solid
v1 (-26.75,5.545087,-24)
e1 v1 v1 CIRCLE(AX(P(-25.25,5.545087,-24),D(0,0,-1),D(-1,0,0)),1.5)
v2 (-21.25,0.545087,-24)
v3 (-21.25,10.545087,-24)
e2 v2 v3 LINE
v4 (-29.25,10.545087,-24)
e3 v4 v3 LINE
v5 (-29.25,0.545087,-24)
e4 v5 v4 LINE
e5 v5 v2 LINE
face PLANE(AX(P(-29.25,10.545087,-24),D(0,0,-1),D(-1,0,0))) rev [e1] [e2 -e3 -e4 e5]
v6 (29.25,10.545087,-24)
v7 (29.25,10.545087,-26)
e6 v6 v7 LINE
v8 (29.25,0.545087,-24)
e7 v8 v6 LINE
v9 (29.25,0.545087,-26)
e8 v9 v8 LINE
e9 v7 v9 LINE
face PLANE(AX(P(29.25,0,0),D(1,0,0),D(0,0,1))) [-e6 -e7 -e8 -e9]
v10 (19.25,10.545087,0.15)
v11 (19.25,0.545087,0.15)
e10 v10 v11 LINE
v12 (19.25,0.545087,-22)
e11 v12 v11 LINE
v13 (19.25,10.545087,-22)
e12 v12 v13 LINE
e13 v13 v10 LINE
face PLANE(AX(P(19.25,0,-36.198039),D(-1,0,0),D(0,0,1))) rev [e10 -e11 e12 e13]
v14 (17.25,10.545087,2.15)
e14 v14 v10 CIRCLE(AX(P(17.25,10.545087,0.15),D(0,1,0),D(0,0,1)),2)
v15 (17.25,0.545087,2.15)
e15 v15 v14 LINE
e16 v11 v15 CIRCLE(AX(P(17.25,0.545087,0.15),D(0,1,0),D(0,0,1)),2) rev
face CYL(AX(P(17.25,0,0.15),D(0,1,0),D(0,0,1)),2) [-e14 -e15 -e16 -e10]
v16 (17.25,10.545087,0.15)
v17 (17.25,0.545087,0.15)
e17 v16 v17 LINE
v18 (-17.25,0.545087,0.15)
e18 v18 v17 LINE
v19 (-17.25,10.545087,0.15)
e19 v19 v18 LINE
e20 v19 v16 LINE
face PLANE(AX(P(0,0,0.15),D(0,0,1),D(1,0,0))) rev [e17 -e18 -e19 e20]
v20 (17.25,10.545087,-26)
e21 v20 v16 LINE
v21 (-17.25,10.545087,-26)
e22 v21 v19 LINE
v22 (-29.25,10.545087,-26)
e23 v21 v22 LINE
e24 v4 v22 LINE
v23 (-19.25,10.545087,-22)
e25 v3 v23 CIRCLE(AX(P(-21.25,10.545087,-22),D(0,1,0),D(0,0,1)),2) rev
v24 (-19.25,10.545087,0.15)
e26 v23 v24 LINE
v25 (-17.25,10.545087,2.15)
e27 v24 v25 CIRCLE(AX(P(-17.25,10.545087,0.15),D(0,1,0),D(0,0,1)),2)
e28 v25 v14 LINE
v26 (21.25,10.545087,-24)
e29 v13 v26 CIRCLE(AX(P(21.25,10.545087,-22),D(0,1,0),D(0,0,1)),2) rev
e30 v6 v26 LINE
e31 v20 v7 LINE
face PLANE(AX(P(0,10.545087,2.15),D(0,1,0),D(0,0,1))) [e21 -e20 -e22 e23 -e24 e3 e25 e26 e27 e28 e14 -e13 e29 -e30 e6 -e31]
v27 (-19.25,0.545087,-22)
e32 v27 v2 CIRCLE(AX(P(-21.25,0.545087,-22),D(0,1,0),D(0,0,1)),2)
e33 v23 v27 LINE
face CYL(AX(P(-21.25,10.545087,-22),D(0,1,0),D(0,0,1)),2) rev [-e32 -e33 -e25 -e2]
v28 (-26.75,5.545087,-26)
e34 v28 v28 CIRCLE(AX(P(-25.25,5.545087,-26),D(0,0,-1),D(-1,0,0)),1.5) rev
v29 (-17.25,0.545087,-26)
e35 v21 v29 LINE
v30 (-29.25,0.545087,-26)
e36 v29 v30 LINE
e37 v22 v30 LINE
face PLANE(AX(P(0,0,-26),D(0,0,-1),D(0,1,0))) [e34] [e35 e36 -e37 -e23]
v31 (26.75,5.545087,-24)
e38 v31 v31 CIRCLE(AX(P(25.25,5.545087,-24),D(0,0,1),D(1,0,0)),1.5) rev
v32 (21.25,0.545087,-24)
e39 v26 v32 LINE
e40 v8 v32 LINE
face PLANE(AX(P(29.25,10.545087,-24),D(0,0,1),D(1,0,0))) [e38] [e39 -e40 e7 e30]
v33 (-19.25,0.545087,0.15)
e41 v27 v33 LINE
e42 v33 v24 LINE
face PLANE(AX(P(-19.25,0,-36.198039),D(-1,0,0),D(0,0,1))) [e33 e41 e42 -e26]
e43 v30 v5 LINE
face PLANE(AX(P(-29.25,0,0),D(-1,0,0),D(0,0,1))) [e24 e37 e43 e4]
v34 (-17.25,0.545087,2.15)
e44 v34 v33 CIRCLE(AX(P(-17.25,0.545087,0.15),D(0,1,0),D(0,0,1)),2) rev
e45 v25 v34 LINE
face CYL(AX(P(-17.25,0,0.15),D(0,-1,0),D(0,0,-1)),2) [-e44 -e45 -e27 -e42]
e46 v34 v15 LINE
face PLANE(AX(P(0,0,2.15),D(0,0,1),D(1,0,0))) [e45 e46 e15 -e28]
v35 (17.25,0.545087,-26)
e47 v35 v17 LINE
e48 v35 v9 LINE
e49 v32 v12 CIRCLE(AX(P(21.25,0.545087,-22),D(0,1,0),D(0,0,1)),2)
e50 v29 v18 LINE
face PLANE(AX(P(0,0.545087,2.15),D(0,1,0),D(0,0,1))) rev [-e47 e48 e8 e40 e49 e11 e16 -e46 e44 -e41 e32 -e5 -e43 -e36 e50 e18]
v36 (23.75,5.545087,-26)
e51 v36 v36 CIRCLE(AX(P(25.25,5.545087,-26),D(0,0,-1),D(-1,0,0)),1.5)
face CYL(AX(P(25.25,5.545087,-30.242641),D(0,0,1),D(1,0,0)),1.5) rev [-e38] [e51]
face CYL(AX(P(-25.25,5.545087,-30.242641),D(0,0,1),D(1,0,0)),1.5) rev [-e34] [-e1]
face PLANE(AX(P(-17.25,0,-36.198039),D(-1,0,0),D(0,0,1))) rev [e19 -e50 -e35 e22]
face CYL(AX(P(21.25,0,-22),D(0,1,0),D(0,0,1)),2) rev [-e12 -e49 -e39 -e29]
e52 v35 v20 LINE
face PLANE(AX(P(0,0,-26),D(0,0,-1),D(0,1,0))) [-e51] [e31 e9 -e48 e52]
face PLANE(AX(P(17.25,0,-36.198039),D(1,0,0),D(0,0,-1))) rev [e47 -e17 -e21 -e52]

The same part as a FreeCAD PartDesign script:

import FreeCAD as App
import Part
import Sketcher
from FreeCAD import Vector
Q = App.Units.Quantity


def edges_at(feature, points):
    """Names of the edges that pass closest to the given points."""
    edges = feature.Shape.Edges
    near = lambda p: min(range(len(edges)), key=lambda i: edges[i].distToShape(Part.Vertex(*p))[0])
    return sorted({f"Edge{near(p) + 1}" for p in points})


def add_polygon(sketch, points):
    """Adds a closed chain of lines whose ends are joined by coincident constraints."""
    first, n = sketch.GeometryCount, len(points)
    for a, b in zip(points, points[1:] + points[:1]):
        sketch.addGeometry(Part.LineSegment(App.Vector(*a, 0), App.Vector(*b, 0)), False)
    for i in range(n):
        sketch.addConstraint(Sketcher.Constraint("Coincident", first + i, 2, first + (i + 1) % n, 1))

doc = App.newDocument("Part")
body = doc.addObject("PartDesign::Body", "Body")

# Sketch on XY plane
sketch1 = body.newObject("Sketcher::SketchObject", "Sketch")
sketch1.AttachmentSupport = (doc.getObject("XY_Plane"), [""])
sketch1.MapMode = "FlatFace"
sketch1.AttachmentOffset = App.Placement(Vector(0, 0, 0.15), App.Rotation())
add_polygon(sketch1, [(17, 1), (17, 11), (-17, 11), (-17, 1)])  # lines 0-3
sketch1.addConstraint(Sketcher.Constraint("Vertical", 0))
sketch1.addConstraint(Sketcher.Constraint("Horizontal", 1))
sketch1.addConstraint(Sketcher.Constraint("Vertical", 2))
sketch1.addConstraint(Sketcher.Constraint("Horizontal", 3))
sketch1.addConstraint(Sketcher.Constraint("DistanceY", 0, 1, 0, 2, Q("10 mm")))
sketch1.addConstraint(Sketcher.Constraint("DistanceX", 1, 2, 1, 1, Q("34.5 mm")))
sketch1.addConstraint(Sketcher.Constraint("DistanceX", -1, 1, 0, 2, Q("17.25 mm")))
sketch1.addConstraint(Sketcher.Constraint("DistanceY", -1, 1, 0, 2, Q("10.545087 mm")))
pad1 = body.newObject("PartDesign::Pad", "Pad")
pad1.Profile = sketch1
pad1.Length = 2

# Sketch on XY plane
sketch2 = body.newObject("Sketcher::SketchObject", "Sketch001")
sketch2.AttachmentSupport = (doc.getObject("XY_Plane"), [""])
sketch2.MapMode = "FlatFace"
sketch2.AttachmentOffset = App.Placement(Vector(0, 0, 2.15), App.Rotation())
add_polygon(sketch2, [(17.2, 10.5), (17.2, 0.5), (19.2, 0.5), (19.2, 10.5)])  # lines 0-3
add_polygon(sketch2, [(-19.2, 10.5), (-19.2, 0.5), (-17.2, 0.5), (-17.2, 10.5)])  # lines 4-7
sketch2.addConstraint(Sketcher.Constraint("Vertical", 0))
sketch2.addConstraint(Sketcher.Constraint("Horizontal", 1))
sketch2.addConstraint(Sketcher.Constraint("Vertical", 2))
sketch2.addConstraint(Sketcher.Constraint("Horizontal", 3))
sketch2.addConstraint(Sketcher.Constraint("Vertical", 4))
sketch2.addConstraint(Sketcher.Constraint("Horizontal", 5))
sketch2.addConstraint(Sketcher.Constraint("Vertical", 6))
sketch2.addConstraint(Sketcher.Constraint("Horizontal", 7))
sketch2.addConstraint(Sketcher.Constraint("Symmetric", 1, 2, 4, 2, -2))
sketch2.addConstraint(Sketcher.Constraint("Symmetric", 3, 2, 6, 2, -2))
sketch2.addConstraint(Sketcher.Constraint("DistanceX", 1, 1, 1, 2, Q("2 mm")))
sketch2.addConstraint(Sketcher.Constraint("DistanceY", 0, 2, 0, 1, Q("10 mm")))
sketch2.addConstraint(Sketcher.Constraint("DistanceX", 4, 2, 0, 2, Q("36.5 mm")))
sketch2.addConstraint(Sketcher.Constraint("DistanceY", -1, 1, 0, 2, Q("0.545087 mm")))
pad2 = body.newObject("PartDesign::Pad", "Pad001")
pad2.Profile = sketch2
pad2.Length = 28.15
pad2.Reversed = True

# Sketch on YZ plane
sketch3 = body.newObject("Sketcher::SketchObject", "Sketch002")
sketch3.AttachmentSupport = (doc.getObject("YZ_Plane"), [""])
sketch3.MapMode = "FlatFace"
sketch3.AttachmentOffset = App.Placement(Vector(0, 0, -19.25), App.Rotation())
add_polygon(sketch3, [(10.5, -26), (0.5, -26), (0.5, -24), (10.5, -24)])  # lines 0-3
sketch3.addConstraint(Sketcher.Constraint("Horizontal", 0))
sketch3.addConstraint(Sketcher.Constraint("Vertical", 1))
sketch3.addConstraint(Sketcher.Constraint("Horizontal", 2))
sketch3.addConstraint(Sketcher.Constraint("Vertical", 3))
sketch3.addConstraint(Sketcher.Constraint("DistanceX", 0, 2, 0, 1, Q("10 mm")))
sketch3.addConstraint(Sketcher.Constraint("DistanceY", 1, 1, 1, 2, Q("2 mm")))
sketch3.addConstraint(Sketcher.Constraint("DistanceY", 0, 2, -1, 1, Q("26 mm")))
sketch3.addConstraint(Sketcher.Constraint("DistanceX", -1, 1, 0, 2, Q("0.545087 mm")))
pad3 = body.newObject("PartDesign::Pad", "Pad002")
pad3.Profile = sketch3
pad3.Length = 10
pad3.Reversed = True
doc.recompute()

mirrored = body.newObject("PartDesign::Mirrored", "Mirrored")
mirrored.Originals = [pad3]
mirrored.MirrorPlane = (doc.getObject("YZ_Plane"), [""])
body.Tip = mirrored
doc.recompute()

fillet = body.newObject("PartDesign::Fillet", "Fillet")
fillet.Base = (mirrored, edges_at(mirrored, [
    (19.25, 5.545, 2.15),
    (-19.25, 5.545, 2.15),
    (-19.25, 5.545, -24),
    (19.25, 5.545, -24),
]))
fillet.Radius = 2

# Sketch on XY plane
sketch4 = body.newObject("Sketcher::SketchObject", "Sketch003")
sketch4.AttachmentSupport = (doc.getObject("XY_Plane"), [""])
sketch4.MapMode = "FlatFace"
sketch4.AttachmentOffset = App.Placement(Vector(0, 0, -26), App.Rotation())
sketch4.addGeometry(Part.Circle(Vector(-25.2, 5.5, 0), Vector(0, 0, 1), 1.5), False)
sketch4.addConstraint(Sketcher.Constraint("Diameter", 0, Q("3 mm")))
sketch4.addConstraint(Sketcher.Constraint("DistanceX", 0, 3, -1, 1, Q("25.25 mm")))
sketch4.addConstraint(Sketcher.Constraint("DistanceY", -1, 1, 0, 3, Q("5.545087 mm")))
pocket1 = body.newObject("PartDesign::Pocket", "Pocket")
pocket1.Profile = sketch4
pocket1.Length = 29.15
pocket1.Reversed = True
doc.recompute()

mirrored2 = body.newObject("PartDesign::Mirrored", "Mirrored001")
mirrored2.Originals = [pocket1]
mirrored2.MirrorPlane = (doc.getObject("YZ_Plane"), [""])
body.Tip = mirrored2

doc.recompute()
